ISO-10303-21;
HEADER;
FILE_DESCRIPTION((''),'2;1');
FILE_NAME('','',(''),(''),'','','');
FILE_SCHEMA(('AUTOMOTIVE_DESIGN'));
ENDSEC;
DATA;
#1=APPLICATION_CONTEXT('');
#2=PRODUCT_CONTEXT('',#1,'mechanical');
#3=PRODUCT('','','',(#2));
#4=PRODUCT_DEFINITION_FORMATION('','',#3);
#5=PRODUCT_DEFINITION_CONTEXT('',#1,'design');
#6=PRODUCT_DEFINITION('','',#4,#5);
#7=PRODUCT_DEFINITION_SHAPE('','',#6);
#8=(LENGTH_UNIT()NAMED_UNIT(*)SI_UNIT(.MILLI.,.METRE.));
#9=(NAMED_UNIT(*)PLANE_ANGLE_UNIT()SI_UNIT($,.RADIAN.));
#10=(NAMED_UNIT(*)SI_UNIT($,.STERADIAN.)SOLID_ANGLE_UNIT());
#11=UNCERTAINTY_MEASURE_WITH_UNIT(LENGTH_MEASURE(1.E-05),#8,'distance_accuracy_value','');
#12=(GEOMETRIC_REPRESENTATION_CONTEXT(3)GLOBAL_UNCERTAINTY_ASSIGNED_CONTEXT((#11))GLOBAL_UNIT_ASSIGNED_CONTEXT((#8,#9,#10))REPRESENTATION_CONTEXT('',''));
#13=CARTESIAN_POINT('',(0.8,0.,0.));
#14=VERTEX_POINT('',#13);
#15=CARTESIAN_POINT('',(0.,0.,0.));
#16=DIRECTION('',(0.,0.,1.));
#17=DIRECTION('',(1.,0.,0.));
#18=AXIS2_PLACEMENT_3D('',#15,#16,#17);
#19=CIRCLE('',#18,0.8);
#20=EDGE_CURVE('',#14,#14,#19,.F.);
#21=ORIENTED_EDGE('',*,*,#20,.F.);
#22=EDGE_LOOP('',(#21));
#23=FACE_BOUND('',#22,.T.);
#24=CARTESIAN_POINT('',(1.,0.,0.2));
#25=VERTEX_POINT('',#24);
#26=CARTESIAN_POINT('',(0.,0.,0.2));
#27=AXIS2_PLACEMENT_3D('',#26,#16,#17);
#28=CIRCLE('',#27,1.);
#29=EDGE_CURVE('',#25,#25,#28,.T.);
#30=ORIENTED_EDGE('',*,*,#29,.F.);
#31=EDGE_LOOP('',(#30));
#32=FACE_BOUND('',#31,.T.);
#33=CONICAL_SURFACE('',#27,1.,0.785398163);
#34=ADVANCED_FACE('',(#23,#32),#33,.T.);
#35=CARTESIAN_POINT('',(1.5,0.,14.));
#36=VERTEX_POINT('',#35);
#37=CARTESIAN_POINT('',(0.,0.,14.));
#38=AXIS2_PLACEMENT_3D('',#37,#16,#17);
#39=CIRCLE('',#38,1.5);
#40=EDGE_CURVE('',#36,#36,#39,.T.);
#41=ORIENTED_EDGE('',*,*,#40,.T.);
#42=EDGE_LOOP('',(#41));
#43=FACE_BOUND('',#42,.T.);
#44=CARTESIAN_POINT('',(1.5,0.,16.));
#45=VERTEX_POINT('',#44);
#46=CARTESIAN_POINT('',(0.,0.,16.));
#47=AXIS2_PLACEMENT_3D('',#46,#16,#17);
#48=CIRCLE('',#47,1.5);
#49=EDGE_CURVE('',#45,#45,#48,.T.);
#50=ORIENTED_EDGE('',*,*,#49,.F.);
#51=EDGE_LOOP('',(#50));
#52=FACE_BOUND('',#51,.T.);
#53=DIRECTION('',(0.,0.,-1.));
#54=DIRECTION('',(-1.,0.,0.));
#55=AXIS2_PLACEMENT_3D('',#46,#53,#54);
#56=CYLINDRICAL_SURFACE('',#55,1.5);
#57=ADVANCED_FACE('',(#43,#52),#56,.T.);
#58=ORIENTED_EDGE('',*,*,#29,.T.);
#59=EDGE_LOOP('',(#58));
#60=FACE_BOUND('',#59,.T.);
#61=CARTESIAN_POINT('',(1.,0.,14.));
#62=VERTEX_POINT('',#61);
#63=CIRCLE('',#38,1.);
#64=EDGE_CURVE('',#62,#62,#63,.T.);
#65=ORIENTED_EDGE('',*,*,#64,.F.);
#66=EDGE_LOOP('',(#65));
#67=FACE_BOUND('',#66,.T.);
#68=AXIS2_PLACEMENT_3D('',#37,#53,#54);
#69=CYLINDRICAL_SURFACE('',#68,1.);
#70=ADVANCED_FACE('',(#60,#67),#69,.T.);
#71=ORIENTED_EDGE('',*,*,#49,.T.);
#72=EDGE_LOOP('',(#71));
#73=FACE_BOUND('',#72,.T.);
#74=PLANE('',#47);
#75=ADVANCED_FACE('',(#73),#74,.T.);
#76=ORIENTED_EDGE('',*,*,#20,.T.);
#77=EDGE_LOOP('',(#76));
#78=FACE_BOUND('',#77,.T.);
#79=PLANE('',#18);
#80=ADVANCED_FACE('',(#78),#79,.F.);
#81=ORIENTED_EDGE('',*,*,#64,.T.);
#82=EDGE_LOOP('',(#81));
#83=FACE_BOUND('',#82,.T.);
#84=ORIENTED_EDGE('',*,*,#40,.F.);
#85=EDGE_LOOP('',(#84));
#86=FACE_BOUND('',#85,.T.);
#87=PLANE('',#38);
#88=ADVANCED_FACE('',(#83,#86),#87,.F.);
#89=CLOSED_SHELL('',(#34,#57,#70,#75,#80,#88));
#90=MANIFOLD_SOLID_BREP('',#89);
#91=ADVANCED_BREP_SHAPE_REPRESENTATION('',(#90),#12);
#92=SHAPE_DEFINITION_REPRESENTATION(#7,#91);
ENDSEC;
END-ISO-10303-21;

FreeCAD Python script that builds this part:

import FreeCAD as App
import Part
import Sketcher

V = App.Vector


def edges_at(feature, points):
    """Names of the edges that pass closest to the given points."""
    edges = feature.Shape.Edges
    near = lambda p: min(range(len(edges)), key=lambda i: edges[i].distToShape(Part.Vertex(*p))[0])
    return sorted({f"Edge{near(p) + 1}" for p in points})

doc = App.newDocument("Part")
params = doc.addObject("Spreadsheet::Sheet", "Params")
for row, (alias, value) in enumerate([
    ("sketch1_diameter", "2 mm"),
    ("pad1_length", "14 mm"),
    ("sketch2_diameter", "3 mm"),
    ("pad2_length", "2 mm"),
    ("chamfer_size", "0.2 mm"),
], start=1):
    params.set(f"A{row}", alias)
    params.set(f"B{row}", "=" + value)
    params.setAlias(f"B{row}", alias)

body = doc.addObject("PartDesign::Body", "Body")

sketch1 = doc.addObject("Sketcher::SketchObject", "Sketch")
body.addObject(sketch1)
sketch1.AttachmentSupport = (doc.XY_Plane, [""])
sketch1.MapMode = "FlatFace"
sketch1.addGeometry(Part.Circle(V(0, 0, 0), V(0, 0, 1), 1), False)
sketch1.addConstraint(Sketcher.Constraint("Coincident", 0, 3, -1, 1))
sketch1.addConstraint(Sketcher.Constraint("Diameter", 0, 2.0))
sketch1.setExpression("Constraints[1]", "Params.sketch1_diameter")
pad1 = doc.addObject("PartDesign::Pad", "Pad")
body.addObject(pad1)
pad1.Profile = sketch1
pad1.setExpression("Length", "Params.pad1_length")

sketch2 = doc.addObject("Sketcher::SketchObject", "Sketch001")
body.addObject(sketch2)
sketch2.AttachmentSupport = (doc.XY_Plane, [""])
sketch2.MapMode = "FlatFace"
sketch2.AttachmentOffset = App.Placement(V(0, 0, 14), App.Rotation())
sketch2.addGeometry(Part.Circle(V(0, 0, 0), V(0, 0, 1), 1.5), False)
sketch2.addConstraint(Sketcher.Constraint("Coincident", 0, 3, -1, 1))
sketch2.addConstraint(Sketcher.Constraint("Diameter", 0, 3.0))
sketch2.setExpression("Constraints[1]", "Params.sketch2_diameter")
pad2 = doc.addObject("PartDesign::Pad", "Pad001")
body.addObject(pad2)
pad2.Profile = sketch2
pad2.setExpression("Length", "Params.pad2_length")
doc.recompute()

chamfer = doc.addObject("PartDesign::Chamfer", "Chamfer")
body.addObject(chamfer)
chamfer.Base = (pad2, edges_at(pad2, [(-1, 0, 0)]))
chamfer.setExpression("Size", "Params.chamfer_size")

doc.recompute()
